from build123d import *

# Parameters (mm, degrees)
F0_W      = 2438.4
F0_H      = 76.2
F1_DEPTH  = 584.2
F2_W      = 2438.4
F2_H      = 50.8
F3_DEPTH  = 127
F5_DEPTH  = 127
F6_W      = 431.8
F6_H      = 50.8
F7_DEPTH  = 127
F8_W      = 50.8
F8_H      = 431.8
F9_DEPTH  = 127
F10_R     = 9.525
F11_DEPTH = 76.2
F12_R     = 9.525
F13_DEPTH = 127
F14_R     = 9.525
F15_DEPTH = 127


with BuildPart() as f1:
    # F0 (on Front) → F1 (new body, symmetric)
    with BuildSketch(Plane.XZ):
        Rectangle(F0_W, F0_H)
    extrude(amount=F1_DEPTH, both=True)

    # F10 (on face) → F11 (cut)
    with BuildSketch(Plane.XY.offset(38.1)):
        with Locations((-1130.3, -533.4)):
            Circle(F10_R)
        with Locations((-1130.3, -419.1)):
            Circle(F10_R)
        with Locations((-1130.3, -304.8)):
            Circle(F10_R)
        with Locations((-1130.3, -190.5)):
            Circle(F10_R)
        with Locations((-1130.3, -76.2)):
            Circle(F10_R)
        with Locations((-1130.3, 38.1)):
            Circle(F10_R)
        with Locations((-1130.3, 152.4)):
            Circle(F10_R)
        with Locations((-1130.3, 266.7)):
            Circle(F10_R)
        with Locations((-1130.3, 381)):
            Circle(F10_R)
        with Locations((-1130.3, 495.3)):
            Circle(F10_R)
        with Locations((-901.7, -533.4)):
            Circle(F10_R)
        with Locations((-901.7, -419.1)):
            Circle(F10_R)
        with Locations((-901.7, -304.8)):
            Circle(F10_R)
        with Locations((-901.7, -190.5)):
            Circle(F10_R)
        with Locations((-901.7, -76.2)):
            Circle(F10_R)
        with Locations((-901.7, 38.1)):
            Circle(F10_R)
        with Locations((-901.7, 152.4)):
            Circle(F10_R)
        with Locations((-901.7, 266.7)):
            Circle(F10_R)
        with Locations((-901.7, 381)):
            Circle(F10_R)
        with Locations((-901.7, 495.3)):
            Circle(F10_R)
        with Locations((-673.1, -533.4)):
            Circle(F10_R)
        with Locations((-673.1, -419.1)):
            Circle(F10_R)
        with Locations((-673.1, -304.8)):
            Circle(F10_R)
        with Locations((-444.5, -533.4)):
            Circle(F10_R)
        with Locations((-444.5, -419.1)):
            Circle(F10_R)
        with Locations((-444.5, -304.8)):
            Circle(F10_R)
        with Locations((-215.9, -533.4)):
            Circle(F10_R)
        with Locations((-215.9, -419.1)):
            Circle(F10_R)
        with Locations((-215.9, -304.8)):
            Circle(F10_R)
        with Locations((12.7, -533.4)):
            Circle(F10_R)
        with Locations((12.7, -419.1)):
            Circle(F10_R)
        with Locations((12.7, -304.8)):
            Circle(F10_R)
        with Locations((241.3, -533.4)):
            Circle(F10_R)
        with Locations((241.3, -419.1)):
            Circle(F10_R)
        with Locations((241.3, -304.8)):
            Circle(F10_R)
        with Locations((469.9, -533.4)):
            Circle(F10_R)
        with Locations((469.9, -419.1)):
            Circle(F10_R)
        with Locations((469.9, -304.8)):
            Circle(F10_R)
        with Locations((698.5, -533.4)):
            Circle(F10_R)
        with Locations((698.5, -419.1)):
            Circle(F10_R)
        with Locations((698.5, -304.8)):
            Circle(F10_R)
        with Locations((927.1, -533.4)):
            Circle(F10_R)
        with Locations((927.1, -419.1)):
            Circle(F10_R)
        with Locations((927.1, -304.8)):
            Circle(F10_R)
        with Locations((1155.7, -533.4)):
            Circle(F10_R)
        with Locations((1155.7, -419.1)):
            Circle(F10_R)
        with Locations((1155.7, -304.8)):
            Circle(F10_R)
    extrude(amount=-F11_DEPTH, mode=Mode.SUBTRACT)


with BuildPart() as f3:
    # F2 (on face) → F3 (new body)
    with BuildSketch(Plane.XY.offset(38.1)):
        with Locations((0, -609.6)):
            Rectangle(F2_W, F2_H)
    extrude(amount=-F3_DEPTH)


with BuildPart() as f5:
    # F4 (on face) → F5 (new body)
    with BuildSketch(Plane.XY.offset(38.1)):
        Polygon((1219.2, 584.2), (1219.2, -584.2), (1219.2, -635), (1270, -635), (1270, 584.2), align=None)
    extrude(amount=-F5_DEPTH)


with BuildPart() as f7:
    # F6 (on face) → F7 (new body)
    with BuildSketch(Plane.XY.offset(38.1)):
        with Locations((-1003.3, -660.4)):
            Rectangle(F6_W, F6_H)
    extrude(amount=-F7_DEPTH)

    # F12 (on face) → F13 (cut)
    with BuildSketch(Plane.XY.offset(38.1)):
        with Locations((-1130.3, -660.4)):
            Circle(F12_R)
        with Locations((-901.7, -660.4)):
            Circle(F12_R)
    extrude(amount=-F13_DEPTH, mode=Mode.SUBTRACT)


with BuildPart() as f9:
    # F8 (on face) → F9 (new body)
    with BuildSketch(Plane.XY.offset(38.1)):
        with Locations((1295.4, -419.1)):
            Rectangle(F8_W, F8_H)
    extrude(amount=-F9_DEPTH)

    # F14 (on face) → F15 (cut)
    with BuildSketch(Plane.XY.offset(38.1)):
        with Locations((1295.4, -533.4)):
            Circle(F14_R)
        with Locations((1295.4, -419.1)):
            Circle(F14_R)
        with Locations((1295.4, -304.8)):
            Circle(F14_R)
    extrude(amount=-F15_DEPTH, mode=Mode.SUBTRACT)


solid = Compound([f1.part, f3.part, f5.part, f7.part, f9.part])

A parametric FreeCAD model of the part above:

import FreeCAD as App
import Part
import Sketcher

V = App.Vector
Q = App.Units.Quantity


def add_polygon(sketch, points):
    """Adds a closed chain of lines whose ends are joined by coincident constraints."""
    first, n = sketch.GeometryCount, len(points)
    for a, b in zip(points, points[1:] + points[:1]):
        sketch.addGeometry(Part.LineSegment(App.Vector(*a, 0), App.Vector(*b, 0)), False)
    for i in range(n):
        sketch.addConstraint(Sketcher.Constraint("Coincident", first + i, 2, first + (i + 1) % n, 1))

doc = App.newDocument("Part")
body = doc.addObject("PartDesign::Body", "Body")

sketch1 = body.newObject("Sketcher::SketchObject", "Sketch")
sketch1.AttachmentSupport = (doc.getObject("XZ_Plane"), [""])
sketch1.MapMode = "FlatFace"
add_polygon(sketch1, [(-1219, 38), (-1219, -38), (1219, -38), (1219, 38)])
sketch1.addConstraint([
    Sketcher.Constraint("Vertical", 0),
    Sketcher.Constraint("Horizontal", 1),
    Sketcher.Constraint("Vertical", 2),
    Sketcher.Constraint("Horizontal", 3),
    Sketcher.Constraint("Symmetric", 0, 2, 2, 2, -1, 1),
    Sketcher.Constraint("DistanceX", 1, 1, 1, 2, Q("96 in")),
    Sketcher.Constraint("DistanceY", 0, 2, 0, 1, Q("3 in")),
])
pad1 = body.newObject("PartDesign::Pad", "Pad")
pad1.Profile = sketch1
pad1.Length = Q("46 in")
pad1.Midplane = True

sketch2 = body.newObject("Sketcher::SketchObject", "Sketch001")
sketch2.AttachmentSupport = (doc.getObject("XY_Plane"), [""])
sketch2.MapMode = "FlatFace"
sketch2.AttachmentOffset = App.Placement(V(0, 0, 1.5 * 25.4), App.Rotation())
sketch2.addGeometry([
    Part.Circle(V(-1130, -533, 0), V(0, 0, 1), 10),
    Part.Circle(V(-1130, -419, 0), V(0, 0, 1), 10),
    Part.Circle(V(-1130, -305, 0), V(0, 0, 1), 10),
    Part.Circle(V(-1130, -190, 0), V(0, 0, 1), 10),
    Part.Circle(V(-1130, -76, 0), V(0, 0, 1), 10),
    Part.Circle(V(-1130, 38, 0), V(0, 0, 1), 10),
    Part.Circle(V(-1130, 152, 0), V(0, 0, 1), 10),
    Part.Circle(V(-1130, 267, 0), V(0, 0, 1), 10),
    Part.Circle(V(-1130, 381, 0), V(0, 0, 1), 10),
    Part.Circle(V(-1130, 495, 0), V(0, 0, 1), 10),
    Part.Circle(V(-902, -533, 0), V(0, 0, 1), 10),
    Part.Circle(V(-902, -419, 0), V(0, 0, 1), 10),
    Part.Circle(V(-902, -305, 0), V(0, 0, 1), 10),
    Part.Circle(V(-902, -190, 0), V(0, 0, 1), 10),
    Part.Circle(V(-902, -76, 0), V(0, 0, 1), 10),
    Part.Circle(V(-902, 38, 0), V(0, 0, 1), 10),
    Part.Circle(V(-902, 152, 0), V(0, 0, 1), 10),
    Part.Circle(V(-902, 267, 0), V(0, 0, 1), 10),
    Part.Circle(V(-902, 381, 0), V(0, 0, 1), 10),
    Part.Circle(V(-902, 495, 0), V(0, 0, 1), 10),
    Part.Circle(V(-673, -533, 0), V(0, 0, 1), 10),
    Part.Circle(V(-673, -419, 0), V(0, 0, 1), 10),
    Part.Circle(V(-673, -305, 0), V(0, 0, 1), 10),
    Part.Circle(V(-444, -533, 0), V(0, 0, 1), 10),
    Part.Circle(V(-444, -419, 0), V(0, 0, 1), 10),
    Part.Circle(V(-444, -305, 0), V(0, 0, 1), 10),
    Part.Circle(V(-216, -533, 0), V(0, 0, 1), 10),
    Part.Circle(V(-216, -419, 0), V(0, 0, 1), 10),
    Part.Circle(V(-216, -305, 0), V(0, 0, 1), 10),
    Part.Circle(V(13, -533, 0), V(0, 0, 1), 10),
    Part.Circle(V(13, -419, 0), V(0, 0, 1), 10),
    Part.Circle(V(13, -305, 0), V(0, 0, 1), 10),
    Part.Circle(V(241, -533, 0), V(0, 0, 1), 10),
    Part.Circle(V(241, -419, 0), V(0, 0, 1), 10),
    Part.Circle(V(241, -305, 0), V(0, 0, 1), 10),
    Part.Circle(V(470, -533, 0), V(0, 0, 1), 10),
    Part.Circle(V(470, -419, 0), V(0, 0, 1), 10),
    Part.Circle(V(470, -305, 0), V(0, 0, 1), 10),
    Part.Circle(V(698, -533, 0), V(0, 0, 1), 10),
    Part.Circle(V(698, -419, 0), V(0, 0, 1), 10),
    Part.Circle(V(698, -305, 0), V(0, 0, 1), 10),
    Part.Circle(V(927, -533, 0), V(0, 0, 1), 10),
    Part.Circle(V(927, -419, 0), V(0, 0, 1), 10),
    Part.Circle(V(927, -305, 0), V(0, 0, 1), 10),
    Part.Circle(V(1156, -533, 0), V(0, 0, 1), 10),
    Part.Circle(V(1156, -419, 0), V(0, 0, 1), 10),
    Part.Circle(V(1156, -305, 0), V(0, 0, 1), 10),
], False)
sketch2.addConstraint([
    Sketcher.Constraint("Equal", 0, 1),
    Sketcher.Constraint("Equal", 1, 2),
    Sketcher.Constraint("Equal", 2, 3),
    Sketcher.Constraint("Equal", 3, 4),
    Sketcher.Constraint("Equal", 4, 5),
    Sketcher.Constraint("Equal", 5, 6),
    Sketcher.Constraint("Equal", 6, 7),
    Sketcher.Constraint("Equal", 7, 8),
    Sketcher.Constraint("Equal", 8, 9),
    Sketcher.Constraint("Equal", 9, 10),
    Sketcher.Constraint("Equal", 10, 11),
    Sketcher.Constraint("Equal", 11, 12),
    Sketcher.Constraint("Equal", 12, 13),
    Sketcher.Constraint("Equal", 13, 14),
    Sketcher.Constraint("Equal", 14, 15),
    Sketcher.Constraint("Equal", 15, 16),
    Sketcher.Constraint("Equal", 16, 17),
    Sketcher.Constraint("Equal", 17, 18),
    Sketcher.Constraint("Equal", 18, 19),
    Sketcher.Constraint("Equal", 19, 20),
    Sketcher.Constraint("Equal", 20, 21),
    Sketcher.Constraint("Equal", 21, 22),
    Sketcher.Constraint("Equal", 22, 23),
    Sketcher.Constraint("Equal", 23, 24),
    Sketcher.Constraint("Equal", 24, 25),
    Sketcher.Constraint("Equal", 25, 26),
    Sketcher.Constraint("Equal", 26, 27),
    Sketcher.Constraint("Equal", 27, 28),
    Sketcher.Constraint("Equal", 28, 29),
    Sketcher.Constraint("Equal", 29, 30),
    Sketcher.Constraint("Equal", 30, 31),
    Sketcher.Constraint("Equal", 31, 32),
    Sketcher.Constraint("Equal", 32, 33),
    Sketcher.Constraint("Equal", 33, 34),
    Sketcher.Constraint("Equal", 34, 35),
    Sketcher.Constraint("Equal", 35, 36),
    Sketcher.Constraint("Equal", 36, 37),
    Sketcher.Constraint("Equal", 37, 38),
    Sketcher.Constraint("Equal", 38, 39),
    Sketcher.Constraint("Equal", 39, 40),
    Sketcher.Constraint("Equal", 40, 41),
    Sketcher.Constraint("Equal", 41, 42),
    Sketcher.Constraint("Equal", 42, 43),
    Sketcher.Constraint("Equal", 43, 44),
    Sketcher.Constraint("Equal", 44, 45),
    Sketcher.Constraint("Equal", 45, 46),
    Sketcher.Constraint("Horizontal", 0, 3, 10, 3),
    Sketcher.Constraint("Horizontal", 1, 3, 11, 3),
    Sketcher.Constraint("Horizontal", 2, 3, 12, 3),
    Sketcher.Constraint("Horizontal", 3, 3, 13, 3),
    Sketcher.Constraint("Horizontal", 4, 3, 14, 3),
    Sketcher.Constraint("Horizontal", 5, 3, 15, 3),
    Sketcher.Constraint("Horizontal", 6, 3, 16, 3),
    Sketcher.Constraint("Horizontal", 7, 3, 17, 3),
    Sketcher.Constraint("Horizontal", 8, 3, 18, 3),
    Sketcher.Constraint("Horizontal", 9, 3, 19, 3),
    Sketcher.Constraint("Horizontal", 10, 3, 20, 3),
    Sketcher.Constraint("Horizontal", 11, 3, 21, 3),
    Sketcher.Constraint("Horizontal", 12, 3, 22, 3),
    Sketcher.Constraint("Horizontal", 20, 3, 23, 3),
    Sketcher.Constraint("Horizontal", 21, 3, 24, 3),
    Sketcher.Constraint("Horizontal", 22, 3, 25, 3),
    Sketcher.Constraint("Horizontal", 23, 3, 26, 3),
    Sketcher.Constraint("Horizontal", 24, 3, 27, 3),
    Sketcher.Constraint("Horizontal", 25, 3, 28, 3),
    Sketcher.Constraint("Horizontal", 26, 3, 29, 3),
    Sketcher.Constraint("Horizontal", 27, 3, 30, 3),
    Sketcher.Constraint("Horizontal", 28, 3, 31, 3),
    Sketcher.Constraint("Horizontal", 29, 3, 32, 3),
    Sketcher.Constraint("Horizontal", 30, 3, 33, 3),
    Sketcher.Constraint("Horizontal", 31, 3, 34, 3),
    Sketcher.Constraint("Horizontal", 32, 3, 35, 3),
    Sketcher.Constraint("Horizontal", 33, 3, 36, 3),
    Sketcher.Constraint("Horizontal", 34, 3, 37, 3),
    Sketcher.Constraint("Horizontal", 35, 3, 38, 3),
    Sketcher.Constraint("Horizontal", 36, 3, 39, 3),
    Sketcher.Constraint("Horizontal", 37, 3, 40, 3),
    Sketcher.Constraint("Horizontal", 38, 3, 41, 3),
    Sketcher.Constraint("Horizontal", 39, 3, 42, 3),
    Sketcher.Constraint("Horizontal", 40, 3, 43, 3),
    Sketcher.Constraint("Horizontal", 41, 3, 44, 3),
    Sketcher.Constraint("Horizontal", 42, 3, 45, 3),
    Sketcher.Constraint("Horizontal", 43, 3, 46, 3),
    Sketcher.Constraint("Vertical", 0, 3, 1, 3),
    Sketcher.Constraint("Vertical", 1, 3, 2, 3),
    Sketcher.Constraint("Vertical", 2, 3, 3, 3),
    Sketcher.Constraint("Vertical", 3, 3, 4, 3),
    Sketcher.Constraint("Vertical", 4, 3, 5, 3),
    Sketcher.Constraint("Vertical", 5, 3, 6, 3),
    Sketcher.Constraint("Vertical", 6, 3, 7, 3),
    Sketcher.Constraint("Vertical", 7, 3, 8, 3),
    Sketcher.Constraint("Vertical", 8, 3, 9, 3),
    Sketcher.Constraint("Vertical", 10, 3, 11, 3),
    Sketcher.Constraint("Vertical", 11, 3, 12, 3),
    Sketcher.Constraint("Vertical", 12, 3, 13, 3),
    Sketcher.Constraint("Vertical", 13, 3, 14, 3),
    Sketcher.Constraint("Vertical", 14, 3, 15, 3),
    Sketcher.Constraint("Vertical", 15, 3, 16, 3),
    Sketcher.Constraint("Vertical", 16, 3, 17, 3),
    Sketcher.Constraint("Vertical", 17, 3, 18, 3),
    Sketcher.Constraint("Vertical", 18, 3, 19, 3),
    Sketcher.Constraint("Vertical", 20, 3, 21, 3),
    Sketcher.Constraint("Vertical", 21, 3, 22, 3),
    Sketcher.Constraint("Vertical", 23, 3, 24, 3),
    Sketcher.Constraint("Vertical", 24, 3, 25, 3),
    Sketcher.Constraint("Vertical", 26, 3, 27, 3),
    Sketcher.Constraint("Vertical", 27, 3, 28, 3),
    Sketcher.Constraint("Vertical", 29, 3, 30, 3),
    Sketcher.Constraint("Vertical", 30, 3, 31, 3),
    Sketcher.Constraint("Vertical", 32, 3, 33, 3),
    Sketcher.Constraint("Vertical", 33, 3, 34, 3),
    Sketcher.Constraint("Vertical", 35, 3, 36, 3),
    Sketcher.Constraint("Vertical", 36, 3, 37, 3),
    Sketcher.Constraint("Vertical", 38, 3, 39, 3),
    Sketcher.Constraint("Vertical", 39, 3, 40, 3),
    Sketcher.Constraint("Vertical", 41, 3, 42, 3),
    Sketcher.Constraint("Vertical", 42, 3, 43, 3),
    Sketcher.Constraint("Vertical", 44, 3, 45, 3),
    Sketcher.Constraint("Vertical", 45, 3, 46, 3),
    Sketcher.Constraint("Diameter", 0, Q("0.75 in")),
    Sketcher.Constraint("DistanceY", 0, 3, -1, 1, Q("21 in")),
    Sketcher.Constraint("DistanceY", 2, 3, -1, 1, Q("12 in")),
    Sketcher.Constraint("DistanceY", 4, 3, -1, 1, Q("3 in")),
    Sketcher.Constraint("DistanceY", -1, 1, 6, 3, Q("6 in")),
    Sketcher.Constraint("DistanceY", -1, 1, 8, 3, Q("15 in")),
    Sketcher.Constraint("DistanceY", 1, 3, 3, 3, Q("9 in")),
    Sketcher.Constraint("DistanceY", 3, 3, 5, 3, Q("9 in")),
    Sketcher.Constraint("DistanceY", 5, 3, 7, 3, Q("9 in")),
    Sketcher.Constraint("DistanceY", 7, 3, 9, 3, Q("9 in")),
    Sketcher.Constraint("DistanceX", 0, 3, 10, 3, Q("9 in")),
    Sketcher.Constraint("DistanceX", 10, 3, 20, 3, Q("9 in")),
    Sketcher.Constraint("DistanceX", 20, 3, 23, 3, Q("9 in")),
    Sketcher.Constraint("DistanceX", 23, 3, 26, 3, Q("9 in")),
    Sketcher.Constraint("DistanceX", 26, 3, 29, 3, Q("9 in")),
    Sketcher.Constraint("DistanceX", 29, 3, 32, 3, Q("9 in")),
    Sketcher.Constraint("DistanceX", 32, 3, 35, 3, Q("9 in")),
    Sketcher.Constraint("DistanceX", 35, 3, 38, 3, Q("9 in")),
    Sketcher.Constraint("DistanceX", 38, 3, 41, 3, Q("9 in")),
    Sketcher.Constraint("DistanceX", 41, 3, 44, 3, Q("9 in")),
    Sketcher.Constraint("DistanceX", 0, 3, -1, 1, Q("44.5 in")),
    Sketcher.Constraint("DistanceY", 1, 3, -1, 1, Q("16.5 in")),
])
pocket1 = body.newObject("PartDesign::Pocket", "Pocket")
pocket1.Profile = sketch2
pocket1.Length = Q("3 in")
body2 = doc.addObject("PartDesign::Body", "Body001")

sketch3 = body2.newObject("Sketcher::SketchObject", "Sketch002")
sketch3.AttachmentSupport = (doc.getObject("XY_Plane001"), [""])
sketch3.MapMode = "FlatFace"
sketch3.AttachmentOffset = App.Placement(V(0, 0, 1.5 * 25.4), App.Rotation())
add_polygon(sketch3, [(-1219, -584), (-1219, -635), (1219, -635), (1219, -584)])
sketch3.addConstraint([
    Sketcher.Constraint("Vertical", 0),
    Sketcher.Constraint("Horizontal", 1),
    Sketcher.Constraint("Vertical", 2),
    Sketcher.Constraint("Horizontal", 3),
    Sketcher.Constraint("DistanceX", 1, 1, 1, 2, Q("96 in")),
    Sketcher.Constraint("DistanceY", 0, 2, 0, 1, Q("2 in")),
    Sketcher.Constraint("DistanceX", 0, 2, -1, 1, Q("48 in")),
    Sketcher.Constraint("DistanceY", 0, 2, -1, 1, Q("25 in")),
])
pad2 = body2.newObject("PartDesign::Pad", "Pad001")
pad2.Profile = sketch3
pad2.Length = Q("5 in")
pad2.Reversed = True
body3 = doc.addObject("PartDesign::Body", "Body002")

sketch4 = body3.newObject("Sketcher::SketchObject", "Sketch003")
sketch4.AttachmentSupport = (doc.getObject("XY_Plane002"), [""])
sketch4.MapMode = "FlatFace"
sketch4.AttachmentOffset = App.Placement(V(0, 0, 1.5 * 25.4), App.Rotation())
add_polygon(sketch4, [(1219, 584), (1219, -635), (1270, -635), (1270, 584)])
sketch4.addConstraint([
    Sketcher.Constraint("Vertical", 0),
    Sketcher.Constraint("Horizontal", 1),
    Sketcher.Constraint("Vertical", 2),
    Sketcher.Constraint("Horizontal", 3),
    Sketcher.Constraint("DistanceX", 1, 1, 1, 2, Q("2 in")),
    Sketcher.Constraint("DistanceY", 0, 2, 0, 1, Q("48 in")),
    Sketcher.Constraint("DistanceX", -1, 1, 0, 2, Q("48 in")),
    Sketcher.Constraint("DistanceY", 0, 2, -1, 1, Q("25 in")),
])
pad3 = body3.newObject("PartDesign::Pad", "Pad002")
pad3.Profile = sketch4
pad3.Length = Q("5 in")
pad3.Reversed = True
body4 = doc.addObject("PartDesign::Body", "Body003")

sketch5 = body4.newObject("Sketcher::SketchObject", "Sketch004")
sketch5.AttachmentSupport = (doc.getObject("XY_Plane003"), [""])
sketch5.MapMode = "FlatFace"
sketch5.AttachmentOffset = App.Placement(V(0, 0, 1.5 * 25.4), App.Rotation())
add_polygon(sketch5, [(-1219, -635), (-1219, -686), (-787, -686), (-787, -635)])
sketch5.addConstraint([
    Sketcher.Constraint("Vertical", 0),
    Sketcher.Constraint("Horizontal", 1),
    Sketcher.Constraint("Vertical", 2),
    Sketcher.Constraint("Horizontal", 3),
    Sketcher.Constraint("DistanceX", 1, 1, 1, 2, Q("17 in")),
    Sketcher.Constraint("DistanceY", 0, 2, 0, 1, Q("2 in")),
    Sketcher.Constraint("DistanceX", 0, 2, -1, 1, Q("48 in")),
    Sketcher.Constraint("DistanceY", 0, 2, -1, 1, Q("27 in")),
])
pad4 = body4.newObject("PartDesign::Pad", "Pad003")
pad4.Profile = sketch5
pad4.Length = Q("5 in")
pad4.Reversed = True

sketch6 = body4.newObject("Sketcher::SketchObject", "Sketch005")
sketch6.AttachmentSupport = (doc.getObject("XY_Plane003"), [""])
sketch6.MapMode = "FlatFace"
sketch6.AttachmentOffset = App.Placement(V(0, 0, 1.5 * 25.4), App.Rotation())
sketch6.addGeometry([
    Part.Circle(V(-1130, -660, 0), V(0, 0, 1), 10),
    Part.Circle(V(-902, -660, 0), V(0, 0, 1), 10),
], False)
sketch6.addConstraint([
    Sketcher.Constraint("Equal", 0, 1),
    Sketcher.Constraint("Horizontal", 0, 3, 1, 3),
    Sketcher.Constraint("Diameter", 0, Q("0.75 in")),
    Sketcher.Constraint("DistanceY", 0, 3, -1, 1, Q("26 in")),
    Sketcher.Constraint("DistanceX", 0, 3, 1, 3, Q("9 in")),
    Sketcher.Constraint("DistanceX", 0, 3, -1, 1, Q("44.5 in")),
])
pocket2 = body4.newObject("PartDesign::Pocket", "Pocket001")
pocket2.Profile = sketch6
pocket2.Length = Q("5 in")
body5 = doc.addObject("PartDesign::Body", "Body004")

sketch7 = body5.newObject("Sketcher::SketchObject", "Sketch006")
sketch7.AttachmentSupport = (doc.getObject("XY_Plane004"), [""])
sketch7.MapMode = "FlatFace"
sketch7.AttachmentOffset = App.Placement(V(0, 0, 1.5 * 25.4), App.Rotation())
add_polygon(sketch7, [(1270, -203), (1270, -635), (1321, -635), (1321, -203)])
sketch7.addConstraint([
    Sketcher.Constraint("Vertical", 0),
    Sketcher.Constraint("Horizontal", 1),
    Sketcher.Constraint("Vertical", 2),
    Sketcher.Constraint("Horizontal", 3),
    Sketcher.Constraint("DistanceX", 1, 1, 1, 2, Q("2 in")),
    Sketcher.Constraint("DistanceY", 0, 2, 0, 1, Q("17 in")),
    Sketcher.Constraint("DistanceX", -1, 1, 0, 2, Q("50 in")),
    Sketcher.Constraint("DistanceY", 0, 2, -1, 1, Q("25 in")),
])
pad5 = body5.newObject("PartDesign::Pad", "Pad004")
pad5.Profile = sketch7
pad5.Length = Q("5 in")
pad5.Reversed = True

sketch8 = body5.newObject("Sketcher::SketchObject", "Sketch007")
sketch8.AttachmentSupport = (doc.getObject("XY_Plane004"), [""])
sketch8.MapMode = "FlatFace"
sketch8.AttachmentOffset = App.Placement(V(0, 0, 1.5 * 25.4), App.Rotation())
sketch8.addGeometry([
    Part.Circle(V(1295, -533, 0), V(0, 0, 1), 10),
    Part.Circle(V(1295, -419, 0), V(0, 0, 1), 10),
    Part.Circle(V(1295, -305, 0), V(0, 0, 1), 10),
], False)
sketch8.addConstraint([
    Sketcher.Constraint("Equal", 0, 1),
    Sketcher.Constraint("Equal", 1, 2),
    Sketcher.Constraint("Vertical", 0, 3, 1, 3),
    Sketcher.Constraint("Vertical", 1, 3, 2, 3),
    Sketcher.Constraint("Diameter", 0, Q("0.75 in")),
    Sketcher.Constraint("DistanceX", -1, 1, 0, 3, Q("51 in")),
    Sketcher.Constraint("DistanceY", 0, 3, -1, 1, Q("21 in")),
    Sketcher.Constraint("DistanceY", 2, 3, -1, 1, Q("12 in")),
    Sketcher.Constraint("DistanceY", 1, 3, -1, 1, Q("16.5 in")),
])
pocket3 = body5.newObject("PartDesign::Pocket", "Pocket002")
pocket3.Profile = sketch8
pocket3.Length = Q("5 in")

doc.recompute()
